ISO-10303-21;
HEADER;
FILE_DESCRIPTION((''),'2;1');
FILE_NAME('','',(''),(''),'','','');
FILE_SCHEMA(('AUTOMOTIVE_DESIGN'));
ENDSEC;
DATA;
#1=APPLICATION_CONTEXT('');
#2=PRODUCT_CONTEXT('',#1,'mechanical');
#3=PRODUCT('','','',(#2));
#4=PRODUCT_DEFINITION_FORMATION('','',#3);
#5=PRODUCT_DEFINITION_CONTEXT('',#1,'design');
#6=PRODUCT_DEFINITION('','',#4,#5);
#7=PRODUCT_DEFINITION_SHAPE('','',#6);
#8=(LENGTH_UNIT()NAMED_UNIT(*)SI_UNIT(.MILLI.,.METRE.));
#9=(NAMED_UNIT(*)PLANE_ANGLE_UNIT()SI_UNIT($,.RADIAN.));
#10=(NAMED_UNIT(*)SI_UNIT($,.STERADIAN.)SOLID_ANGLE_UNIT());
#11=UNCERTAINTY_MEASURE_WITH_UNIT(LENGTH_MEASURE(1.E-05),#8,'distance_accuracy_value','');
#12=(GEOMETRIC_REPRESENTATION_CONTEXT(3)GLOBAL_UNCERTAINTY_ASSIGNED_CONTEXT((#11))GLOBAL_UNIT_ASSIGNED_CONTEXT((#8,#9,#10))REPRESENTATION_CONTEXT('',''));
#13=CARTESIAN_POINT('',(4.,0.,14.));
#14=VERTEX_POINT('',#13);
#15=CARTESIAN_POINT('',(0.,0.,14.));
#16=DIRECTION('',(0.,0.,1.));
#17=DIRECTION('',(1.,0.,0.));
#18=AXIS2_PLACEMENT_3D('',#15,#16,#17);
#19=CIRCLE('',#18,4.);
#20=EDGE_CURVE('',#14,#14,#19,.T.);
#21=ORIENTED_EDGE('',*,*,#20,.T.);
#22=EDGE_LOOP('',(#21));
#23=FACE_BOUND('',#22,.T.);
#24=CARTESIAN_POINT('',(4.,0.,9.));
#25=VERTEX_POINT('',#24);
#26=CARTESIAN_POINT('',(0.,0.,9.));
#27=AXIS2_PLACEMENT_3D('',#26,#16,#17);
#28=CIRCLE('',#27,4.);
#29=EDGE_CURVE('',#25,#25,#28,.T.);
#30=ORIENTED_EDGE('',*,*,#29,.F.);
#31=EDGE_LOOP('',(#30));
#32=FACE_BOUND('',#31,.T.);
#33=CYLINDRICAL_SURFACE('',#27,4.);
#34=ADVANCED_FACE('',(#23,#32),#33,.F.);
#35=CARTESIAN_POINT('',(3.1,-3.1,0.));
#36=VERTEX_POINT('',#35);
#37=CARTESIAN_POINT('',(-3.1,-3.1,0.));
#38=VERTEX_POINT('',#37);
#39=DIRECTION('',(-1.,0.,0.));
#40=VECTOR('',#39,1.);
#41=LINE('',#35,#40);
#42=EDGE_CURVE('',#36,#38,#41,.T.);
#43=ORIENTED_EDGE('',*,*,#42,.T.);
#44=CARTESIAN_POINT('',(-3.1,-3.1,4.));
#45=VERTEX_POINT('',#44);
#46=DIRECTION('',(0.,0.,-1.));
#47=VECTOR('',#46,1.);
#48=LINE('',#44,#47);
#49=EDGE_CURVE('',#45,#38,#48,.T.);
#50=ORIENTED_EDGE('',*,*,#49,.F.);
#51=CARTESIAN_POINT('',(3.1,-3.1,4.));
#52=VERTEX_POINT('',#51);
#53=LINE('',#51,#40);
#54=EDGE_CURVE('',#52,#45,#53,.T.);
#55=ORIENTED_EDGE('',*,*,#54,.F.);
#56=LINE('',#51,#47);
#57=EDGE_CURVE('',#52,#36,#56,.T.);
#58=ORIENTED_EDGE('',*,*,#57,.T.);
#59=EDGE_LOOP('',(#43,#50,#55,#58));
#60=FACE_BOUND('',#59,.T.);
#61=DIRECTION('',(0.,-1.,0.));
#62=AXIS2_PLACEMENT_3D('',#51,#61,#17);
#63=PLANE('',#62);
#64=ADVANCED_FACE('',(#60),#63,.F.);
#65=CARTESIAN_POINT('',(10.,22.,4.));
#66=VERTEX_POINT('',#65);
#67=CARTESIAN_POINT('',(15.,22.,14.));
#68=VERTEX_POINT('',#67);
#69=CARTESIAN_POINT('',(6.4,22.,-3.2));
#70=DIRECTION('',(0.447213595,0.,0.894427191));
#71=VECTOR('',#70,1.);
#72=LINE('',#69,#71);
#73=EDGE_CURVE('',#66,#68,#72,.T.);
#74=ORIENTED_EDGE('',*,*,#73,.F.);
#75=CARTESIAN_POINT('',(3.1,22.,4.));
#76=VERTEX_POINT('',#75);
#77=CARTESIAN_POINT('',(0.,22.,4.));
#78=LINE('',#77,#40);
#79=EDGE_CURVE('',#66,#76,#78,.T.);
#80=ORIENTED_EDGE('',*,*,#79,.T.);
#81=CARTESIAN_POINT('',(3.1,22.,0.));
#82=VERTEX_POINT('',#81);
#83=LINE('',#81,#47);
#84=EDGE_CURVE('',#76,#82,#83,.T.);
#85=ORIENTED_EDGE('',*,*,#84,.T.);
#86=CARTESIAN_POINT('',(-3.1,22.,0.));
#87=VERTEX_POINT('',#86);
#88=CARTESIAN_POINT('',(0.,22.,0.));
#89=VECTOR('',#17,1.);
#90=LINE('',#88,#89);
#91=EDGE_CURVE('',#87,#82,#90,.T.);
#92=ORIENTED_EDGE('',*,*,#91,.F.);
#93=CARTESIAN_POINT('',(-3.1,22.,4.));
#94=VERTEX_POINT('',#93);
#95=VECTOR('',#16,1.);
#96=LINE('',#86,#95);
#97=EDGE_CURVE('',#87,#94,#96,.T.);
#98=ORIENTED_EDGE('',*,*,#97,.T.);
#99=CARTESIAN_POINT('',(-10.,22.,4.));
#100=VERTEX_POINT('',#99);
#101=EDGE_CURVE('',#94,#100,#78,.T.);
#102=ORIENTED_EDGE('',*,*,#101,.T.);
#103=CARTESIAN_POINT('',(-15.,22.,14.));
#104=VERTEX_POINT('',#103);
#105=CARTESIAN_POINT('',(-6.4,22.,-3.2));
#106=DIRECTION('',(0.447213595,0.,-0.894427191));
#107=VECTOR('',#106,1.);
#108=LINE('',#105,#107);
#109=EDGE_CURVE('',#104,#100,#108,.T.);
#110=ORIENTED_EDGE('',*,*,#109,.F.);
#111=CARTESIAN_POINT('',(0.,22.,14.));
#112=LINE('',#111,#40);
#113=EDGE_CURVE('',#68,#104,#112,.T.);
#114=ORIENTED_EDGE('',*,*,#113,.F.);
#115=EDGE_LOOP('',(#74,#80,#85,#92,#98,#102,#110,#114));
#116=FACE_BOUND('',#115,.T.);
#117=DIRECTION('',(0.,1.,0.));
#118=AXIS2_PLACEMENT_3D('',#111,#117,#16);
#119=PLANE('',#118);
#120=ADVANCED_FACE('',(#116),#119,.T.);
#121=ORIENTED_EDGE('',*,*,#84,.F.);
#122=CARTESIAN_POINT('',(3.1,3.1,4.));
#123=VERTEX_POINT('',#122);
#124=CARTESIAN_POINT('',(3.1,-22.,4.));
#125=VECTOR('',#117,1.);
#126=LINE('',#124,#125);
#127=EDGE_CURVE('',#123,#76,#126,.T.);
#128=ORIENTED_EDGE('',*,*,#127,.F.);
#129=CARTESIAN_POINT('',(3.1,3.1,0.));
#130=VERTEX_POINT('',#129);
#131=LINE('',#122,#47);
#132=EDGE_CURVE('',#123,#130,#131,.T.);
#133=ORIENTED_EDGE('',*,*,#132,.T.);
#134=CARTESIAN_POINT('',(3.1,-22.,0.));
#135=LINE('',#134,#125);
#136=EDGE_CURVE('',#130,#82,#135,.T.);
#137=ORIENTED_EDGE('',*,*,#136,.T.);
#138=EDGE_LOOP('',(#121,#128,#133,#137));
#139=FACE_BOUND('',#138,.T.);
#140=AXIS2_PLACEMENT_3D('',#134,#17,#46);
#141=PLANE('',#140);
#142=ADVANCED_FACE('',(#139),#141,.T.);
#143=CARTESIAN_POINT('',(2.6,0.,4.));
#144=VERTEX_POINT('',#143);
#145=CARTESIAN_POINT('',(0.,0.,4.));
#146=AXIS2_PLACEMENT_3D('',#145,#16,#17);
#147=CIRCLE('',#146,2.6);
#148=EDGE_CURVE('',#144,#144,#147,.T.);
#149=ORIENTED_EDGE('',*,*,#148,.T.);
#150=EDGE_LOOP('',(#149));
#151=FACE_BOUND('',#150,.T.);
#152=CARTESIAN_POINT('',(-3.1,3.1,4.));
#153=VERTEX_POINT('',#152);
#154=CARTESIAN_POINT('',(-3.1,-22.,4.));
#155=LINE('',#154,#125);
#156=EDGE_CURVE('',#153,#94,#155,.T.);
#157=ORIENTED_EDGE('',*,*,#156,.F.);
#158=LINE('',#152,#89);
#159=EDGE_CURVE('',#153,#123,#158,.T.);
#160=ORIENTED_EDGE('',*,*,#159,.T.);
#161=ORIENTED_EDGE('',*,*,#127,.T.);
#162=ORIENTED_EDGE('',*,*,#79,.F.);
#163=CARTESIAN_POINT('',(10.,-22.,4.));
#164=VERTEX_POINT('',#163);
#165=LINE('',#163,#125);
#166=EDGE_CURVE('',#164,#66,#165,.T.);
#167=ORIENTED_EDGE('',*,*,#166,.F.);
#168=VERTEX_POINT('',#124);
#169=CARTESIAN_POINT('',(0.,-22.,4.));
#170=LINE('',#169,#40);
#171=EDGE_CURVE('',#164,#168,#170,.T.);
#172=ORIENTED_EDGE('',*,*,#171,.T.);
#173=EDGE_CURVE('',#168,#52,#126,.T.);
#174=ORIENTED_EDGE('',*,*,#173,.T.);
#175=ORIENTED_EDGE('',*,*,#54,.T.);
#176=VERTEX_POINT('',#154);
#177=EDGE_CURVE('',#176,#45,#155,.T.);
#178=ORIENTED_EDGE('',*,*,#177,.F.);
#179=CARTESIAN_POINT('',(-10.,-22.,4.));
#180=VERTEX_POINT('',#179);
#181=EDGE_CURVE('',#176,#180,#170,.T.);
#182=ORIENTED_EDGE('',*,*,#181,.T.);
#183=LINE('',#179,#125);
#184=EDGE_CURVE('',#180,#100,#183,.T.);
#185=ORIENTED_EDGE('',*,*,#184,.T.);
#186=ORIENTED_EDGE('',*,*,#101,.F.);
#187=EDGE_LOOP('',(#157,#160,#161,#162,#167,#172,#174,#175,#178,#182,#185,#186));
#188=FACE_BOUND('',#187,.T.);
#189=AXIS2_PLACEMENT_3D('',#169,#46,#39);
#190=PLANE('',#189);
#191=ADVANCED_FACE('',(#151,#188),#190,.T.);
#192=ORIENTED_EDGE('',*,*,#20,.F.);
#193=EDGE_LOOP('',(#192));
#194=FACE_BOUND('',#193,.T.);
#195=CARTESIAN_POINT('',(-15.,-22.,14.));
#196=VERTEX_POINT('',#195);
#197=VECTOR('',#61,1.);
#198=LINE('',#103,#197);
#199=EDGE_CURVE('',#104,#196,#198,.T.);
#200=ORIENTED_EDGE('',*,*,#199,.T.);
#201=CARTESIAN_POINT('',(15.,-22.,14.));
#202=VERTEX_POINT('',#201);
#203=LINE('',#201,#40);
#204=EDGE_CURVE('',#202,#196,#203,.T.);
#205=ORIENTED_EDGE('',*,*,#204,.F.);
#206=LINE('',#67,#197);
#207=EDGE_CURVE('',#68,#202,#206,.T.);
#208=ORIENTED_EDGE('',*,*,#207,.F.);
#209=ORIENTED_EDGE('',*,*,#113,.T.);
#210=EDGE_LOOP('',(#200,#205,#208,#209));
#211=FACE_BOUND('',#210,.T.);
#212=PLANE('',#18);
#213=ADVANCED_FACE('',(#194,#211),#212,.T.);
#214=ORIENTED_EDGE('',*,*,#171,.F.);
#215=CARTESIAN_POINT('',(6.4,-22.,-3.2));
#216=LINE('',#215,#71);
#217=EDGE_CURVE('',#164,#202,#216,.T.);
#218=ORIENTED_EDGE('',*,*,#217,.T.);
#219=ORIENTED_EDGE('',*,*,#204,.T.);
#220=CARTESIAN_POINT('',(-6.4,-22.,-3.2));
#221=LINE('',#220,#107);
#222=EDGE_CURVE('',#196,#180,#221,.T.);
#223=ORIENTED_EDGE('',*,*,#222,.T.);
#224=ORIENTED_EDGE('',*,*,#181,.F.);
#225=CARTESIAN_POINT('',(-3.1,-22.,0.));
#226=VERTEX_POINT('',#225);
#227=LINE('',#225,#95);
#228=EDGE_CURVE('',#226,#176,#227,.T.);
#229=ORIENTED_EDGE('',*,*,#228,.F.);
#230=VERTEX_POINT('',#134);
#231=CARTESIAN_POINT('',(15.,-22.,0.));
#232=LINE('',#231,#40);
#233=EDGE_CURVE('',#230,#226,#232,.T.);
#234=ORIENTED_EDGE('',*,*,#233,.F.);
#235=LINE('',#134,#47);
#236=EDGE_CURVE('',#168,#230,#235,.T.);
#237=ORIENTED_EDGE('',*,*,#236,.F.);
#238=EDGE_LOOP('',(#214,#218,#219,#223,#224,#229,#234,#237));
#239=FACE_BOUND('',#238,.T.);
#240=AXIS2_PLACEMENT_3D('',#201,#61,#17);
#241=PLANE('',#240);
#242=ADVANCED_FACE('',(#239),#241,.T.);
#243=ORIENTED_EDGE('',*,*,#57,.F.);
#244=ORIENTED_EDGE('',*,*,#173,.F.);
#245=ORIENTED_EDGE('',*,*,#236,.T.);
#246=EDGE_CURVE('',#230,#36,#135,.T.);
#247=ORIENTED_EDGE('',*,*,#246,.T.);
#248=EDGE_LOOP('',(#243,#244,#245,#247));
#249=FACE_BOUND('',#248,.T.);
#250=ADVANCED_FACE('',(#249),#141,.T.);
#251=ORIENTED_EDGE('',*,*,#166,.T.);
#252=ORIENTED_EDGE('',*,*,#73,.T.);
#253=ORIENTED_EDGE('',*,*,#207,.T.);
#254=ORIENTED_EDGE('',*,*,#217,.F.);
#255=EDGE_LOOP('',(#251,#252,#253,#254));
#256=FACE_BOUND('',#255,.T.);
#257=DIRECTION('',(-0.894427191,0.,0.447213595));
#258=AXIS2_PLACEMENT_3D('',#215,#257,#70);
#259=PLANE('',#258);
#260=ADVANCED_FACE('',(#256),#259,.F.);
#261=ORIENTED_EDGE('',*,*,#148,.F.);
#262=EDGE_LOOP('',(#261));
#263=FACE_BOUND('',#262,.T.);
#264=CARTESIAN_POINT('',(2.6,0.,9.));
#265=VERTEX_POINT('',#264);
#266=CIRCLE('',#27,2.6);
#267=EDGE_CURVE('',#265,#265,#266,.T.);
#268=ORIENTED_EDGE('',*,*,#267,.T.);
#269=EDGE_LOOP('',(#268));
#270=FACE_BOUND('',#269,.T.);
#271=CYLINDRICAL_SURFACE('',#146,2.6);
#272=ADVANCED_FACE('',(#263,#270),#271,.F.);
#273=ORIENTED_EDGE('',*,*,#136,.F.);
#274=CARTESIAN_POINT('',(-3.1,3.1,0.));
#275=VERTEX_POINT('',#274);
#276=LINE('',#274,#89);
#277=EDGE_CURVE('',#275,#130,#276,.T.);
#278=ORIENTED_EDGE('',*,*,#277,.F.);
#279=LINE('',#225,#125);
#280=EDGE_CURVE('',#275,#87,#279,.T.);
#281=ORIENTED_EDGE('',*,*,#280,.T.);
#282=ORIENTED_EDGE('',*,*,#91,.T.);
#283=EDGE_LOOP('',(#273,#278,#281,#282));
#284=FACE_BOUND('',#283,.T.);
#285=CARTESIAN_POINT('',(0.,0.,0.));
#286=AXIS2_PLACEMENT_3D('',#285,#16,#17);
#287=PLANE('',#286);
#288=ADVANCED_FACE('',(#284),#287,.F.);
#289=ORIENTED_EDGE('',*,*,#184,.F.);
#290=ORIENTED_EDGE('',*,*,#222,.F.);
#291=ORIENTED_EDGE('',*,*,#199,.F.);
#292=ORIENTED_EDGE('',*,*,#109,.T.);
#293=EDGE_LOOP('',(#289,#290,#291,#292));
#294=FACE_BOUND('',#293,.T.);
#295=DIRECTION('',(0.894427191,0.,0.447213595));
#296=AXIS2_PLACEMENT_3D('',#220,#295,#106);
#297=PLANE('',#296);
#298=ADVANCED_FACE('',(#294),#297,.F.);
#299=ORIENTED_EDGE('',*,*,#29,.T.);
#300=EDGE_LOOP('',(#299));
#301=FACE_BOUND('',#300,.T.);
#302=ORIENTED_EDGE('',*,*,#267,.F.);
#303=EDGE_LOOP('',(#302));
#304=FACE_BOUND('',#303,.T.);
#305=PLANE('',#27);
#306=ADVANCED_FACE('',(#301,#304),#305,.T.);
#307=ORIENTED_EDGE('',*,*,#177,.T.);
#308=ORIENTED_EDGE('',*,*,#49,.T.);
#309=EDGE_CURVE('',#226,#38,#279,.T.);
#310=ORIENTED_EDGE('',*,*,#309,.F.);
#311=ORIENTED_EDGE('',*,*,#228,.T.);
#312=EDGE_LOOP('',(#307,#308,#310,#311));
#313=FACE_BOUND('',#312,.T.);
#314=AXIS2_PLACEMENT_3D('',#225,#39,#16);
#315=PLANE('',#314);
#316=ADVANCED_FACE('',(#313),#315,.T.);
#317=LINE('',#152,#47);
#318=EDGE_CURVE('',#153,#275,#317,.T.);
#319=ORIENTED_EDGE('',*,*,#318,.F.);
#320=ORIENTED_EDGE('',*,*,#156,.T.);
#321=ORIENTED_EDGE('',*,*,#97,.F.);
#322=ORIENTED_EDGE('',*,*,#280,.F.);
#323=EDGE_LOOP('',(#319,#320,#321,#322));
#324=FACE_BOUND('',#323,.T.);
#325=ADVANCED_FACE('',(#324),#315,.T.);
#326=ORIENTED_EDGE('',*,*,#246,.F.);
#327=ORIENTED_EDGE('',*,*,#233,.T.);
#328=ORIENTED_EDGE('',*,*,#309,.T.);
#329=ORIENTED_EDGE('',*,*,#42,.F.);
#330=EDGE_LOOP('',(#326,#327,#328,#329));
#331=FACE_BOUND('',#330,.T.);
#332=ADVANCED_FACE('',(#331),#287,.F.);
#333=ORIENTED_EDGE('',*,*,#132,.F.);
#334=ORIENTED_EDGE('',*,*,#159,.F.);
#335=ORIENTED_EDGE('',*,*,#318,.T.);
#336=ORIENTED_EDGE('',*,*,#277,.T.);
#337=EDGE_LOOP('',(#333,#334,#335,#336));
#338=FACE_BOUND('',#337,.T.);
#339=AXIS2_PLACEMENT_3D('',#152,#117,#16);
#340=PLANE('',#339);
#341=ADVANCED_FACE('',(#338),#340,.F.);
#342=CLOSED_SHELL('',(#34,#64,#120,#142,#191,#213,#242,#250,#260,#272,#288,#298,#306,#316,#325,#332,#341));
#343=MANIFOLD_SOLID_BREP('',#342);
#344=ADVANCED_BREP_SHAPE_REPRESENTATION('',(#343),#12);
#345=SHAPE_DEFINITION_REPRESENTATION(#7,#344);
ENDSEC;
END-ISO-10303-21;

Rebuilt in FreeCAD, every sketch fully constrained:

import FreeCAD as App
import Part
import Sketcher

doc = App.newDocument("Part")
body = doc.addObject("PartDesign::Body", "Body")

# Sketch on XY plane
sketch1 = body.newObject("Sketcher::SketchObject", "Sketch")
sketch1.AttachmentSupport = (doc.getObject("XY_Plane"), [""])
sketch1.MapMode = "FlatFace"
sketch1.addGeometry([
    Part.LineSegment(App.Vector(-15, 22, 0), App.Vector(-15, -22, 0)),
    Part.LineSegment(App.Vector(-15, -22, 0), App.Vector(15, -22, 0)),
    Part.LineSegment(App.Vector(15, -22, 0), App.Vector(15, 22, 0)),
    Part.LineSegment(App.Vector(15, 22, 0), App.Vector(-15, 22, 0)),
], False)
sketch1.addConstraint([
    Sketcher.Constraint("Coincident", 0, 2, 1, 1),
    Sketcher.Constraint("Coincident", 1, 2, 2, 1),
    Sketcher.Constraint("Coincident", 2, 2, 3, 1),
    Sketcher.Constraint("Coincident", 3, 2, 0, 1),
    Sketcher.Constraint("Vertical", 0),
    Sketcher.Constraint("Horizontal", 1),
    Sketcher.Constraint("Vertical", 2),
    Sketcher.Constraint("Horizontal", 3),
    Sketcher.Constraint("Symmetric", 0, 2, 2, 2, -1, 1),
    Sketcher.Constraint("DistanceX", 1, 1, 1, 2, 30.0),
    Sketcher.Constraint("DistanceY", 0, 2, 0, 1, 44.0),
])
pad1 = body.newObject("PartDesign::Pad", "Pad")
pad1.Profile = sketch1
pad1.Length = 14

# Sketch on XZ plane
sketch2 = body.newObject("Sketcher::SketchObject", "Sketch001")
sketch2.AttachmentSupport = (doc.getObject("XZ_Plane"), [""])
sketch2.MapMode = "FlatFace"
sketch2.AttachmentOffset = App.Placement(App.Vector(0, 0, -22), App.Rotation())
sketch2.addGeometry([
    Part.LineSegment(App.Vector(-15, 0, 0), App.Vector(-15, 14, 0)),  # 0
    Part.LineSegment(App.Vector(-15, 14, 0), App.Vector(-10, 4, 0)),  # 1
    Part.LineSegment(App.Vector(-10, 4, 0), App.Vector(-3.1, 4, 0)),  # 2
    Part.LineSegment(App.Vector(-3.1, 4, 0), App.Vector(-3.1, 0, 0)),  # 3
    Part.LineSegment(App.Vector(-3.1, 0, 0), App.Vector(-15, 0, 0)),  # 4
    Part.LineSegment(App.Vector(3.1, 4, 0), App.Vector(10, 4, 0)),  # 5
    Part.LineSegment(App.Vector(10, 4, 0), App.Vector(15, 14, 0)),  # 6
    Part.LineSegment(App.Vector(15, 14, 0), App.Vector(15, 0, 0)),  # 7
    Part.LineSegment(App.Vector(15, 0, 0), App.Vector(3.1, 0, 0)),  # 8
    Part.LineSegment(App.Vector(3.1, 0, 0), App.Vector(3.1, 4, 0)),  # 9
], False)
sketch2.addConstraint([
    Sketcher.Constraint("Coincident", 0, 2, 1, 1),
    Sketcher.Constraint("Coincident", 1, 2, 2, 1),
    Sketcher.Constraint("Coincident", 2, 2, 3, 1),
    Sketcher.Constraint("Coincident", 3, 2, 4, 1),
    Sketcher.Constraint("Coincident", 4, 2, 0, 1),
    Sketcher.Constraint("Coincident", 5, 2, 6, 1),
    Sketcher.Constraint("Coincident", 6, 2, 7, 1),
    Sketcher.Constraint("Coincident", 7, 2, 8, 1),
    Sketcher.Constraint("Coincident", 8, 2, 9, 1),
    Sketcher.Constraint("Coincident", 9, 2, 5, 1),
    Sketcher.Constraint("Vertical", 0),
    Sketcher.Constraint("Horizontal", 2),
    Sketcher.Constraint("Vertical", 3),
    Sketcher.Constraint("Horizontal", 4),
    Sketcher.Constraint("Horizontal", 5),
    Sketcher.Constraint("Vertical", 7),
    Sketcher.Constraint("Horizontal", 8),
    Sketcher.Constraint("Vertical", 9),
    Sketcher.Constraint("Symmetric", 4, 2, 7, 2, -1, 1),
    Sketcher.Constraint("Symmetric", 1, 2, 5, 2, -2),
    Sketcher.Constraint("Symmetric", 3, 2, 8, 2, -2),
    Sketcher.Constraint("Horizontal", 0, 2, 6, 2),
    Sketcher.Constraint("DistanceY", 0, 1, 0, 2, 14.0),
    Sketcher.Constraint("DistanceY", 3, 2, 3, 1, 4.0),
    Sketcher.Constraint("DistanceX", 2, 1, 2, 2, 6.9),
    Sketcher.Constraint("DistanceX", 4, 2, 4, 1, 11.9),
    Sketcher.Constraint("DistanceX", 0, 2, -1, 1, 15.0),
])
pocket1 = body.newObject("PartDesign::Pocket", "Pocket")
pocket1.Profile = sketch2
pocket1.Length = 44
pocket1.Reversed = True

# Sketch on XY plane
sketch3 = body.newObject("Sketcher::SketchObject", "Sketch002")
sketch3.AttachmentSupport = (doc.getObject("XY_Plane"), [""])
sketch3.MapMode = "FlatFace"
sketch3.addGeometry([
    Part.LineSegment(App.Vector(3.1, 3.1, 0), App.Vector(3.1, -3.1, 0)),
    Part.LineSegment(App.Vector(3.1, -3.1, 0), App.Vector(-3.1, -3.1, 0)),
    Part.LineSegment(App.Vector(-3.1, -3.1, 0), App.Vector(-3.1, 3.1, 0)),
    Part.LineSegment(App.Vector(-3.1, 3.1, 0), App.Vector(3.1, 3.1, 0)),
], False)
sketch3.addConstraint([
    Sketcher.Constraint("Coincident", 0, 2, 1, 1),
    Sketcher.Constraint("Coincident", 1, 2, 2, 1),
    Sketcher.Constraint("Coincident", 2, 2, 3, 1),
    Sketcher.Constraint("Coincident", 3, 2, 0, 1),
    Sketcher.Constraint("Vertical", 0),
    Sketcher.Constraint("Horizontal", 1),
    Sketcher.Constraint("Vertical", 2),
    Sketcher.Constraint("Horizontal", 3),
    Sketcher.Constraint("Symmetric", 0, 2, 2, 2, -1, 1),
    Sketcher.Constraint("Equal", 3, 0),
    Sketcher.Constraint("DistanceX", 1, 2, 1, 1, 6.2),
])
pocket2 = body.newObject("PartDesign::Pocket", "Pocket001")
pocket2.Profile = sketch3
pocket2.Length = 4
pocket2.Reversed = True

# Sketch on XY plane
sketch4 = body.newObject("Sketcher::SketchObject", "Sketch003")
sketch4.AttachmentSupport = (doc.getObject("XY_Plane"), [""])
sketch4.MapMode = "FlatFace"
sketch4.AttachmentOffset = App.Placement(App.Vector(0, 0, 14), App.Rotation())
sketch4.addGeometry(Part.Circle(App.Vector(0, 0, 0), App.Vector(0, 0, 1), 4), False)
sketch4.addConstraint([
    Sketcher.Constraint("Coincident", 0, 3, -1, 1),
    Sketcher.Constraint("Diameter", 0, 8.0),
])
pocket3 = body.newObject("PartDesign::Pocket", "Pocket002")
pocket3.Profile = sketch4
pocket3.Length = 5

# Sketch on XY plane
sketch5 = body.newObject("Sketcher::SketchObject", "Sketch004")
sketch5.AttachmentSupport = (doc.getObject("XY_Plane"), [""])
sketch5.MapMode = "FlatFace"
sketch5.AttachmentOffset = App.Placement(App.Vector(0, 0, 9), App.Rotation())
sketch5.addGeometry(Part.Circle(App.Vector(0, 0, 0), App.Vector(0, 0, 1), 2.6), False)
sketch5.addConstraint([
    Sketcher.Constraint("Coincident", 0, 3, -1, 1),
    Sketcher.Constraint("Diameter", 0, 5.2),
])
pocket4 = body.newObject("PartDesign::Pocket", "Pocket003")
pocket4.Profile = sketch5
pocket4.Length = 5

doc.recompute()
